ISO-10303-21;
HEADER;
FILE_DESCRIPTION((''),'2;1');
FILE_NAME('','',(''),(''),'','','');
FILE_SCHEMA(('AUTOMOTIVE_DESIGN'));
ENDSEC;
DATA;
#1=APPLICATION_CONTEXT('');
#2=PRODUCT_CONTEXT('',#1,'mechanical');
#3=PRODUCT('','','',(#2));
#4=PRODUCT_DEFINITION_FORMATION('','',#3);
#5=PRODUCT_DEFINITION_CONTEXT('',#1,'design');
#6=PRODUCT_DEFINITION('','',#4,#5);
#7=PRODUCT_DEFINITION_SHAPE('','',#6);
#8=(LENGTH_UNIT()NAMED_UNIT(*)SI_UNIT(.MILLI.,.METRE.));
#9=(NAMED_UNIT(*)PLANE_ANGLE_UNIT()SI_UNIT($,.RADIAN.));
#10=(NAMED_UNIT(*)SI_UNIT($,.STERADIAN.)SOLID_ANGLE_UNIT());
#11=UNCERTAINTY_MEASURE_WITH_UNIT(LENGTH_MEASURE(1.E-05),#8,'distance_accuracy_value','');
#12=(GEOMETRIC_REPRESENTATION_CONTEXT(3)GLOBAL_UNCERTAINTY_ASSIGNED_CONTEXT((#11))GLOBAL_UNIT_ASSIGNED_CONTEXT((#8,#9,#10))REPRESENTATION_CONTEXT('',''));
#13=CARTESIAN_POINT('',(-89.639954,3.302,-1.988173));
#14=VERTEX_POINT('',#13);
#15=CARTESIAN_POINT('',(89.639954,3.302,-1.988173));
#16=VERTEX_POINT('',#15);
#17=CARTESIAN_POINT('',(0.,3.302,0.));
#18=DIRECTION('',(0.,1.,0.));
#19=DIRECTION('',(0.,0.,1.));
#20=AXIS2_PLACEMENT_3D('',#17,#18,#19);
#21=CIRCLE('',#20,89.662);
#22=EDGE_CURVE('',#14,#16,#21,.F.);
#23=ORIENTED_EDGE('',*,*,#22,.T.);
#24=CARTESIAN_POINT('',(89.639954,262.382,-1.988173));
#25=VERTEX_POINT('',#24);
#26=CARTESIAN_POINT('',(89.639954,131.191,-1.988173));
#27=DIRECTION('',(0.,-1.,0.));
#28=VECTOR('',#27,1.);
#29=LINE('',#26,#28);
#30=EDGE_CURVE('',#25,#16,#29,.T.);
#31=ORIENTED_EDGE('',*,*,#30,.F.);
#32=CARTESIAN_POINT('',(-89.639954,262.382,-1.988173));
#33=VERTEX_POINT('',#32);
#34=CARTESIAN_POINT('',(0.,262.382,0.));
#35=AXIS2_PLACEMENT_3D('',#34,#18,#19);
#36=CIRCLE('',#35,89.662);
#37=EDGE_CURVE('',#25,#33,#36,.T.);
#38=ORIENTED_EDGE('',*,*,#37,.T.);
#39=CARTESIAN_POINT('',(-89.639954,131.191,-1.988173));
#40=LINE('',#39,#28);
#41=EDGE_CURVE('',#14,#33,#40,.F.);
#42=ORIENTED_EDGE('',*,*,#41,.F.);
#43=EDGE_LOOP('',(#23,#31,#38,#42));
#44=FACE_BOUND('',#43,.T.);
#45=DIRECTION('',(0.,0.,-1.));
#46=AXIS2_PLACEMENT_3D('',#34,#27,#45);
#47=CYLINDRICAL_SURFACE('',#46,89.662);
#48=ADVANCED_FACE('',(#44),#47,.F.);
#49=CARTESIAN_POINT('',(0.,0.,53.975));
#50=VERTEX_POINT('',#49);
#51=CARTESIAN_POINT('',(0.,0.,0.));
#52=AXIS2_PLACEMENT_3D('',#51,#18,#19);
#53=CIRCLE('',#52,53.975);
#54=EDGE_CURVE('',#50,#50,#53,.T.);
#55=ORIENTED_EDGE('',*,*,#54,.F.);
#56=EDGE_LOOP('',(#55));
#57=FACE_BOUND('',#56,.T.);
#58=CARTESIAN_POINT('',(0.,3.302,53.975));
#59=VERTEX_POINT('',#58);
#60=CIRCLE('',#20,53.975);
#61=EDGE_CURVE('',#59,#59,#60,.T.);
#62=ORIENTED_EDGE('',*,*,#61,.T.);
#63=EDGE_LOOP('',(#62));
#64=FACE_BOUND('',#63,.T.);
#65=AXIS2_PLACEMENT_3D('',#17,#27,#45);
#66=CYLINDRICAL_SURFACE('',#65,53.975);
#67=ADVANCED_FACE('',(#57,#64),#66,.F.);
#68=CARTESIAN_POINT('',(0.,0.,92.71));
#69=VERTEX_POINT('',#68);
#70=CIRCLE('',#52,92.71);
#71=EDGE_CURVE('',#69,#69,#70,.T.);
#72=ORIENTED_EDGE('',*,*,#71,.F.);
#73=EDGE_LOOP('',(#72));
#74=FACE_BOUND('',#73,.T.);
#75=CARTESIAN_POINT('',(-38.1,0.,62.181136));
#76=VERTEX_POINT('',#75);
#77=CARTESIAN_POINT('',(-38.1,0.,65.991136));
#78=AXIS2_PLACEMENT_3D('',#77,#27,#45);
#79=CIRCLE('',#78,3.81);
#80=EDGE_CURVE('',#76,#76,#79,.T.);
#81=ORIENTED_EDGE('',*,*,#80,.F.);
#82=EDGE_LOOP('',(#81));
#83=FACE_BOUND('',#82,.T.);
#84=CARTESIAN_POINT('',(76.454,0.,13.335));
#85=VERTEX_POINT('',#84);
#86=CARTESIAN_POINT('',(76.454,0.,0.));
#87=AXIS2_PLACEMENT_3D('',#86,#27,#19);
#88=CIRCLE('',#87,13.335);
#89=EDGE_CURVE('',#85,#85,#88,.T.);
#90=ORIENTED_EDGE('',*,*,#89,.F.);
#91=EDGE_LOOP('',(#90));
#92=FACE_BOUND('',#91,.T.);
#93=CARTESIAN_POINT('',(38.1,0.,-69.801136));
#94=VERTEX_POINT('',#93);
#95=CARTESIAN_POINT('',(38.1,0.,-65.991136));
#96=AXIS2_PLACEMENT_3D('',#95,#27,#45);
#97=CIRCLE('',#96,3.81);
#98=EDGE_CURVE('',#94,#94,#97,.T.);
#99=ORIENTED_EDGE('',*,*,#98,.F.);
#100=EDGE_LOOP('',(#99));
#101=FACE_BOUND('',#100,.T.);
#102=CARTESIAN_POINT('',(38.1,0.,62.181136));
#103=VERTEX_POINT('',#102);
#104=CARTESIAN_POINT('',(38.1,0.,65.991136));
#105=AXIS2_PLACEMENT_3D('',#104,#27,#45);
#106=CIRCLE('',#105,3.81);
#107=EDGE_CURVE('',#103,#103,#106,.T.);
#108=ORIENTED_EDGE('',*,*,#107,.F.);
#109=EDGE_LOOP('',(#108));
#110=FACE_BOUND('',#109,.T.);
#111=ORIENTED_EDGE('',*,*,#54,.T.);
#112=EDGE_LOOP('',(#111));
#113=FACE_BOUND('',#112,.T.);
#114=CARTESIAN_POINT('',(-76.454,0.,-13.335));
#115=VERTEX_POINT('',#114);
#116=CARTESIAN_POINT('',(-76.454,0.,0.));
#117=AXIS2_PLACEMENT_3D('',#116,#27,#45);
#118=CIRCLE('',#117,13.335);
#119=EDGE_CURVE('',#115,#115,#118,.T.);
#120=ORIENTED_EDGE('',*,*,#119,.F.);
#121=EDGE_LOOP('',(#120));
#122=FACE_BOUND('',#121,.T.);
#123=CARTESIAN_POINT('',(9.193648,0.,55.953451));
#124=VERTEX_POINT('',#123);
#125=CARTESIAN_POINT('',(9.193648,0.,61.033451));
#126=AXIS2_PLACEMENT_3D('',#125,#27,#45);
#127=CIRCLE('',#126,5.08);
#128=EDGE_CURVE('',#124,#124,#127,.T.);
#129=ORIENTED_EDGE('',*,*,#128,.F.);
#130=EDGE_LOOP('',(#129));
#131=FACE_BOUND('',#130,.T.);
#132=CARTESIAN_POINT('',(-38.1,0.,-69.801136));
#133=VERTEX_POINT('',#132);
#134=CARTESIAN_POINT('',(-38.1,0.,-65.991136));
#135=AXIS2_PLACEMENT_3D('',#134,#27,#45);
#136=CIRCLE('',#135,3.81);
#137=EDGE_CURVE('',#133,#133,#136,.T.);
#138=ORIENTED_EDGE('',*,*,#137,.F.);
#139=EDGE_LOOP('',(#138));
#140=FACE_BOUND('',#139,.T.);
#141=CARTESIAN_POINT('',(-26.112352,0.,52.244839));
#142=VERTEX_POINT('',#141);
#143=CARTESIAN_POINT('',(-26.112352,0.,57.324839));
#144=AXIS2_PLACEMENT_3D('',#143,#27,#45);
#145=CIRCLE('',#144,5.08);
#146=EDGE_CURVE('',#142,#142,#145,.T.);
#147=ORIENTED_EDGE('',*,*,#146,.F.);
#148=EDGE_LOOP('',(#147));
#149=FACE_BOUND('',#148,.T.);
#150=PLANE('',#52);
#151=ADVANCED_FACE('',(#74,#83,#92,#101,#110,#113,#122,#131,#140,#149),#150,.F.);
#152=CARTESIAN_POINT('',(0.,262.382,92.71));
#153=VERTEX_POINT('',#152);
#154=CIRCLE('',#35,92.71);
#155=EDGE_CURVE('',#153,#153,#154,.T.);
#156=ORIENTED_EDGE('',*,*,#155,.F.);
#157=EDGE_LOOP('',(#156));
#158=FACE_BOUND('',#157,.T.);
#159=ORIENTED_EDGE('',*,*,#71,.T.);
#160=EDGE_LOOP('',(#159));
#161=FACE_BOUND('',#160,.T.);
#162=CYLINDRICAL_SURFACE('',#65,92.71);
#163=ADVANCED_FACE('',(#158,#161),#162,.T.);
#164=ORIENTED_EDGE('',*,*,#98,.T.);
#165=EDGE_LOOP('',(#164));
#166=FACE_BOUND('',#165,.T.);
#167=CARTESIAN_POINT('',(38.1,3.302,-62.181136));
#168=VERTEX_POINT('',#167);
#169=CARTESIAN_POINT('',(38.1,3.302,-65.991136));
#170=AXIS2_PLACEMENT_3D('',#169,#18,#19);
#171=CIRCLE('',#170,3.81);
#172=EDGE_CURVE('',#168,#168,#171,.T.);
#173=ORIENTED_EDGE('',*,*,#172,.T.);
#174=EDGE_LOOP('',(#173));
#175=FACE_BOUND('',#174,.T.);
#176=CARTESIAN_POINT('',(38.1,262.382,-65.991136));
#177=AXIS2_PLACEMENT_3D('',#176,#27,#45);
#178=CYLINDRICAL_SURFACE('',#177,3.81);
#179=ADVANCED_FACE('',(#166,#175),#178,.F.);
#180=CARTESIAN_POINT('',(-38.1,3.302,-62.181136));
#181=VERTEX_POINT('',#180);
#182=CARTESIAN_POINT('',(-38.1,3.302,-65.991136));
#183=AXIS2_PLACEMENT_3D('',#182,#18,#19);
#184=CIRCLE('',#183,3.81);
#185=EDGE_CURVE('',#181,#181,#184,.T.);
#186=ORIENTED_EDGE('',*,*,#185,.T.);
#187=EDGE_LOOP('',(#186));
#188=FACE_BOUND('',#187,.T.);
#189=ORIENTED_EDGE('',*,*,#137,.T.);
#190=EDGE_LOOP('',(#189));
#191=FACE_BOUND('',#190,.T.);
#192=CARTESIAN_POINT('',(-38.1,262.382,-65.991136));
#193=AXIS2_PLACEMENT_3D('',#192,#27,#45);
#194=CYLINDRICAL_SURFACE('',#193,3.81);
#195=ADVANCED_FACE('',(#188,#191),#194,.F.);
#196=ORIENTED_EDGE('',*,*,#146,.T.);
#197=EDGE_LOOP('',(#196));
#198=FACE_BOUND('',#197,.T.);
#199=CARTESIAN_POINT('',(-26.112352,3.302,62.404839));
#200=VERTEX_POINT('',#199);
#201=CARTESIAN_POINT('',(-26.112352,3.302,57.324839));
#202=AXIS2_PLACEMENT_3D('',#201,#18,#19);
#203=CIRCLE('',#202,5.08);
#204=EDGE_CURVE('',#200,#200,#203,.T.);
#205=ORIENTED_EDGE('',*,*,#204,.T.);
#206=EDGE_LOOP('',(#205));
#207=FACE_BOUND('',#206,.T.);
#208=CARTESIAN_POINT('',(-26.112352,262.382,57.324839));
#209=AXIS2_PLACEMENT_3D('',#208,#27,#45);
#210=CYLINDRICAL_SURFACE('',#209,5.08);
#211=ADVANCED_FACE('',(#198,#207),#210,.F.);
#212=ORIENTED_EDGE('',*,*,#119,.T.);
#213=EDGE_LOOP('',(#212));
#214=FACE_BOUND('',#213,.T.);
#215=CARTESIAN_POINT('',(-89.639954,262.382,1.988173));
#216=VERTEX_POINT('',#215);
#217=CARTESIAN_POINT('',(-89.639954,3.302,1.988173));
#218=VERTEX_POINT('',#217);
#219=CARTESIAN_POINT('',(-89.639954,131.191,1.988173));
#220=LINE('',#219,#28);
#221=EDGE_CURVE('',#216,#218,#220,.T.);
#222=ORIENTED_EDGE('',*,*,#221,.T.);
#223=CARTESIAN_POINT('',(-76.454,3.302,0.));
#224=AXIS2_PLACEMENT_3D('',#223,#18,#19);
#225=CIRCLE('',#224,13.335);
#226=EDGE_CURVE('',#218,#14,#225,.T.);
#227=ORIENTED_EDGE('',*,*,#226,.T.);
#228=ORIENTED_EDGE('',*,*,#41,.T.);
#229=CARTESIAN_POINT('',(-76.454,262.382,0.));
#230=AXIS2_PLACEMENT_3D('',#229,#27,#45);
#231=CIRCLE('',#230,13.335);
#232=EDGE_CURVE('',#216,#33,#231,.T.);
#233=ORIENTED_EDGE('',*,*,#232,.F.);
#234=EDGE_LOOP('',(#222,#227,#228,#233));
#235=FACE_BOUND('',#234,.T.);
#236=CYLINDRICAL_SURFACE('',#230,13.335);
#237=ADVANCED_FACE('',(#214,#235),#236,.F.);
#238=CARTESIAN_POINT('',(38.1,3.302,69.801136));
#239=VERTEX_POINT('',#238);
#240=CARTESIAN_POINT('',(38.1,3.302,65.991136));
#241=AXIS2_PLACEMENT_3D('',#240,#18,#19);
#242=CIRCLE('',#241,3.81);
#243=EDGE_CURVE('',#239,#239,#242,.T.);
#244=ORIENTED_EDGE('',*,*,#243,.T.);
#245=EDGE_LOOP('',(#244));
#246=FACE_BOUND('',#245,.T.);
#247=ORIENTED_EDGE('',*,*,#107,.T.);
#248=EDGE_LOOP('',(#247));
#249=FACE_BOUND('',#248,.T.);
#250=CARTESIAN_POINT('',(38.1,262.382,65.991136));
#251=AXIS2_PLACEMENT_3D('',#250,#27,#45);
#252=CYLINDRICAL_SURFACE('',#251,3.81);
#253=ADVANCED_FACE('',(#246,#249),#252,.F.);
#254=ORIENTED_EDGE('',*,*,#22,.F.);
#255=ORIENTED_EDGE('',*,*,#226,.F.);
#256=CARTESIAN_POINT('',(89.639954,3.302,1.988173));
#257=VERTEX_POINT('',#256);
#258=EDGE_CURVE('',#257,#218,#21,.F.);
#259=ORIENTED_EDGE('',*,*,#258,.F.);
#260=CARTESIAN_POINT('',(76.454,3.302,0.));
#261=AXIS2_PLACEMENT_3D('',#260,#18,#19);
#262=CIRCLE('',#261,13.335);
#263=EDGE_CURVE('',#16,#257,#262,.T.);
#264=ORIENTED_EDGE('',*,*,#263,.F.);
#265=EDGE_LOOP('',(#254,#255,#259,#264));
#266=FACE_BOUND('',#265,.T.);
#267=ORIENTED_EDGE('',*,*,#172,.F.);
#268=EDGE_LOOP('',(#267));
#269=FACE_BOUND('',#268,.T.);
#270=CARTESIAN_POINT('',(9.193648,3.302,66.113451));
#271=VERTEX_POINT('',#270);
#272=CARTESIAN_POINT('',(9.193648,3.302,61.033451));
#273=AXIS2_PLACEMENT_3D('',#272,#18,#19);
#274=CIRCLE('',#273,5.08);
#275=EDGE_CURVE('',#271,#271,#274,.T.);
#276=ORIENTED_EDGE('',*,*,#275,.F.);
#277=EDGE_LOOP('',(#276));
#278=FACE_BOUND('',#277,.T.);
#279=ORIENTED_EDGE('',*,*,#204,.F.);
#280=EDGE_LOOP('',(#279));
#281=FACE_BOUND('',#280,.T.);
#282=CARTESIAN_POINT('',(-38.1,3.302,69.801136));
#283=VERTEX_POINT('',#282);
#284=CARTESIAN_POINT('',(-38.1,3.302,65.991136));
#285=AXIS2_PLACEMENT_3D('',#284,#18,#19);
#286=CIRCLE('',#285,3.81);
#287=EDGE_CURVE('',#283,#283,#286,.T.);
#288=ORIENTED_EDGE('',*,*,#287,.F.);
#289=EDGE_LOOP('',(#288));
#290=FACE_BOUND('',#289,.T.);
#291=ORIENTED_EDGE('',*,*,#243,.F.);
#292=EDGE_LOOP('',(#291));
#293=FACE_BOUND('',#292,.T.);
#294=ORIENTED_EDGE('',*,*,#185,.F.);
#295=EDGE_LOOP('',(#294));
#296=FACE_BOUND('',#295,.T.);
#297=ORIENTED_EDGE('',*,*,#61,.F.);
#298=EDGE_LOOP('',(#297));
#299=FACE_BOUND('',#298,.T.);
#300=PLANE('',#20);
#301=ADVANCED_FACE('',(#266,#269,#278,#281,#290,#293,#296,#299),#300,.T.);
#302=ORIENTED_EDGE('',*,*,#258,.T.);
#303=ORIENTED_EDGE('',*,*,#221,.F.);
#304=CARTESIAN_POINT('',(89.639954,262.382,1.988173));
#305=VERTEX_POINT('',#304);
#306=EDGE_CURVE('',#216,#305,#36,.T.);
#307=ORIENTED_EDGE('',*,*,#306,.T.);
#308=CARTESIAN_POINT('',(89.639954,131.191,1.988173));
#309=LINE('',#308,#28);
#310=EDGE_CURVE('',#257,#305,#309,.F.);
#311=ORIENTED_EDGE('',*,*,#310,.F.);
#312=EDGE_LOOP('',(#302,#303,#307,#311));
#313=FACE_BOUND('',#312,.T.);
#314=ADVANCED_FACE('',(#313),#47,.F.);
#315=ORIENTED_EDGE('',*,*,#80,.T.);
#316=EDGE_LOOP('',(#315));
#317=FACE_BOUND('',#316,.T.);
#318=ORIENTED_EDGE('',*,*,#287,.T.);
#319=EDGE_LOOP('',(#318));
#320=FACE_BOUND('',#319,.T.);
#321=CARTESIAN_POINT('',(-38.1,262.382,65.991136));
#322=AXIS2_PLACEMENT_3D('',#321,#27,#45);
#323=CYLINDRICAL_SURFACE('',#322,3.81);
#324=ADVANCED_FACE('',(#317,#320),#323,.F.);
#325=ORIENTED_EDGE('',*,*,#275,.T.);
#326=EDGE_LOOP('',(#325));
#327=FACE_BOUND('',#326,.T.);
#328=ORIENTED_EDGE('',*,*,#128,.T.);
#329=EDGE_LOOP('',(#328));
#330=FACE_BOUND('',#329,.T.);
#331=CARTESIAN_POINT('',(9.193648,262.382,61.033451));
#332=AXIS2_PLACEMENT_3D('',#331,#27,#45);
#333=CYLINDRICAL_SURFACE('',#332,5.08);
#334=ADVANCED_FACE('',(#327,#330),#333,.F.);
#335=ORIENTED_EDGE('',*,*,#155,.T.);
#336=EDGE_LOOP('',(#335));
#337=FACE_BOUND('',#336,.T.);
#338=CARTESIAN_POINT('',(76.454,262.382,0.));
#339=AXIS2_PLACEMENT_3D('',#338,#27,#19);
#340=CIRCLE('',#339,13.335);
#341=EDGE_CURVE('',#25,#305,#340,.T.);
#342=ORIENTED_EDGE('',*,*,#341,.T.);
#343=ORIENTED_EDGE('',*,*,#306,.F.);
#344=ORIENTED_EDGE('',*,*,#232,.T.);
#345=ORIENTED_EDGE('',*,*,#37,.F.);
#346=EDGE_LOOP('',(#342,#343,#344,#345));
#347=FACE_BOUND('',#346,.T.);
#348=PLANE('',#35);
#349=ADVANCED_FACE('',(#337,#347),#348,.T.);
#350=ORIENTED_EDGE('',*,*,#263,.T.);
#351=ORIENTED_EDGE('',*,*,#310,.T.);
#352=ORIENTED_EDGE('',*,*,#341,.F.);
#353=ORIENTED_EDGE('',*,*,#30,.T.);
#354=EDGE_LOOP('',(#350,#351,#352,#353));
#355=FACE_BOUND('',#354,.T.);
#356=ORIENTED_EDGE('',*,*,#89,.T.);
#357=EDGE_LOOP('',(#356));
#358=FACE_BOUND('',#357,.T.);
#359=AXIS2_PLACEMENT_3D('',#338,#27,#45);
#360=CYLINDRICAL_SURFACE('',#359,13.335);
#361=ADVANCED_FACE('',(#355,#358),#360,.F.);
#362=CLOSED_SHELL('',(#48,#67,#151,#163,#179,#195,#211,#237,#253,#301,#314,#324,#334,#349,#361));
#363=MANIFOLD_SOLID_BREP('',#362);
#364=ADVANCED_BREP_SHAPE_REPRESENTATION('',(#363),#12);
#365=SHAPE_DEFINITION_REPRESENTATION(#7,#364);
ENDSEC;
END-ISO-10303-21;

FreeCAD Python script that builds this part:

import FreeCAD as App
import Part
import Sketcher
from FreeCAD import Vector
Q = App.Units.Quantity

doc = App.newDocument("Part")
body = doc.addObject("PartDesign::Body", "Body")

# Sketch on XZ plane
sketch1 = doc.addObject("Sketcher::SketchObject", "Sketch")
body.addObject(sketch1)
sketch1.AttachmentSupport = (doc.XZ_Plane, [""])
sketch1.MapMode = "FlatFace"
sketch1.addGeometry([
    Part.Circle(Vector(0, 0, 0), Vector(0, 0, 1), 92.71),
    Part.Circle(Vector(0, 0, 0), Vector(0, 0, 1), 53.975),
], False)
sketch1.addConstraint([
    Sketcher.Constraint("Coincident", 0, 3, -1, 1),
    Sketcher.Constraint("Coincident", 1, 3, -1, 1),
    Sketcher.Constraint("Diameter", 0, Q("7.3 in")),
    Sketcher.Constraint("Diameter", 1, Q("4.25 in")),
])
pad1 = doc.addObject("PartDesign::Pad", "Pad")
body.addObject(pad1)
pad1.Profile = sketch1
pad1.Length = Q("0.13 in")
pad1.Reversed = True

# Sketch on XZ plane
sketch2 = doc.addObject("Sketcher::SketchObject", "Sketch001")
body.addObject(sketch2)
sketch2.AttachmentSupport = (doc.XZ_Plane, [""])
sketch2.MapMode = "FlatFace"
sketch2.AttachmentOffset = App.Placement(Vector(0, 0, -0.13 * 25.4), App.Rotation())
sketch2.addGeometry([
    Part.Circle(Vector(0, 0, 0), Vector(0, 0, 1), 92.71),
    Part.Circle(Vector(0, 0, 0), Vector(0, 0, 1), 89.662),
], False)
sketch2.addConstraint([
    Sketcher.Constraint("Coincident", 0, 3, -1, 1),
    Sketcher.Constraint("Coincident", 1, 3, -1, 1),
    Sketcher.Constraint("Diameter", 0, Q("7.3 in")),
    Sketcher.Constraint("Diameter", 1, Q("7.06 in")),
])
pad2 = doc.addObject("PartDesign::Pad", "Pad001")
body.addObject(pad2)
pad2.Profile = sketch2
pad2.Length = Q("10.2 in")
pad2.Reversed = True

# Sketch on XZ plane
sketch3 = doc.addObject("Sketcher::SketchObject", "Sketch002")
body.addObject(sketch3)
sketch3.AttachmentSupport = (doc.XZ_Plane, [""])
sketch3.MapMode = "FlatFace"
sketch3.addGeometry([
    Part.Circle(Vector(-76.454, 0, 0), Vector(0, 0, 1), 13.335),
    Part.Circle(Vector(76.454, 0, 0), Vector(0, 0, 1), 13.335),
], False)
sketch3.addConstraint([
    Sketcher.Constraint("Equal", 0, 1),
    Sketcher.Constraint("Symmetric", 0, 3, 1, 3, -1, 1),
    Sketcher.Constraint("PointOnObject", 0, 3, -1),
    Sketcher.Constraint("Diameter", 0, Q("1.05 in")),
    Sketcher.Constraint("DistanceX", 0, 3, -1, 1, Q("3.01 in")),
])
pocket1 = doc.addObject("PartDesign::Pocket", "Pocket")
body.addObject(pocket1)
pocket1.Profile = sketch3
pocket1.Type = "ThroughAll"

# Sketch on XZ plane
sketch4 = doc.addObject("Sketcher::SketchObject", "Sketch003")
body.addObject(sketch4)
sketch4.AttachmentSupport = (doc.XZ_Plane, [""])
sketch4.MapMode = "FlatFace"
sketch4.addGeometry([
    Part.Circle(Vector(38.1, 65.991136, 0), Vector(0, 0, 1), 3.81),
    Part.Circle(Vector(-38.1, 65.991136, 0), Vector(0, 0, 1), 3.81),
    Part.Circle(Vector(-38.1, -65.991136, 0), Vector(0, 0, 1), 3.81),
    Part.Circle(Vector(38.1, -65.991136, 0), Vector(0, 0, 1), 3.81),
], False)
sketch4.addConstraint([
    Sketcher.Constraint("Equal", 0, 1),
    Sketcher.Constraint("Equal", 1, 2),
    Sketcher.Constraint("Equal", 2, 3),
    Sketcher.Constraint("Symmetric", 0, 3, 2, 3, -1, 1),
    Sketcher.Constraint("Symmetric", 1, 3, 3, 3, -1, 1),
    Sketcher.Constraint("Symmetric", 0, 3, 1, 3, -2),
    Sketcher.Constraint("Diameter", 0, Q("0.3 in")),
    Sketcher.Constraint("DistanceX", 1, 3, 0, 3, Q("3 in")),
    Sketcher.Constraint("DistanceY", 2, 3, 1, 3, 131.982272),
])
pocket2 = doc.addObject("PartDesign::Pocket", "Pocket001")
body.addObject(pocket2)
pocket2.Profile = sketch4
pocket2.Type = "ThroughAll"

# Sketch on XZ plane
sketch5 = doc.addObject("Sketcher::SketchObject", "Sketch004")
body.addObject(sketch5)
sketch5.AttachmentSupport = (doc.XZ_Plane, [""])
sketch5.MapMode = "FlatFace"
sketch5.addGeometry([
    Part.Circle(Vector(-26.112352, 57.324839, 0), Vector(0, 0, 1), 5.08),
    Part.Circle(Vector(9.193648, 61.033451, 0), Vector(0, 0, 1), 5.08),
], False)
sketch5.addConstraint([
    Sketcher.Constraint("Equal", 0, 1),
    Sketcher.Constraint("Diameter", 0, Q("0.4 in")),
    Sketcher.Constraint("DistanceX", 0, 3, 1, 3, Q("1.39 in")),
    Sketcher.Constraint("DistanceY", -1, 1, 0, 3, 57.324839),
    Sketcher.Constraint("DistanceY", -1, 1, 1, 3, 61.033451),
    Sketcher.Constraint("DistanceX", 0, 3, -1, 1, 26.112352),
])
pocket3 = doc.addObject("PartDesign::Pocket", "Pocket002")
body.addObject(pocket3)
pocket3.Profile = sketch5
pocket3.Type = "ThroughAll"

doc.recompute()
